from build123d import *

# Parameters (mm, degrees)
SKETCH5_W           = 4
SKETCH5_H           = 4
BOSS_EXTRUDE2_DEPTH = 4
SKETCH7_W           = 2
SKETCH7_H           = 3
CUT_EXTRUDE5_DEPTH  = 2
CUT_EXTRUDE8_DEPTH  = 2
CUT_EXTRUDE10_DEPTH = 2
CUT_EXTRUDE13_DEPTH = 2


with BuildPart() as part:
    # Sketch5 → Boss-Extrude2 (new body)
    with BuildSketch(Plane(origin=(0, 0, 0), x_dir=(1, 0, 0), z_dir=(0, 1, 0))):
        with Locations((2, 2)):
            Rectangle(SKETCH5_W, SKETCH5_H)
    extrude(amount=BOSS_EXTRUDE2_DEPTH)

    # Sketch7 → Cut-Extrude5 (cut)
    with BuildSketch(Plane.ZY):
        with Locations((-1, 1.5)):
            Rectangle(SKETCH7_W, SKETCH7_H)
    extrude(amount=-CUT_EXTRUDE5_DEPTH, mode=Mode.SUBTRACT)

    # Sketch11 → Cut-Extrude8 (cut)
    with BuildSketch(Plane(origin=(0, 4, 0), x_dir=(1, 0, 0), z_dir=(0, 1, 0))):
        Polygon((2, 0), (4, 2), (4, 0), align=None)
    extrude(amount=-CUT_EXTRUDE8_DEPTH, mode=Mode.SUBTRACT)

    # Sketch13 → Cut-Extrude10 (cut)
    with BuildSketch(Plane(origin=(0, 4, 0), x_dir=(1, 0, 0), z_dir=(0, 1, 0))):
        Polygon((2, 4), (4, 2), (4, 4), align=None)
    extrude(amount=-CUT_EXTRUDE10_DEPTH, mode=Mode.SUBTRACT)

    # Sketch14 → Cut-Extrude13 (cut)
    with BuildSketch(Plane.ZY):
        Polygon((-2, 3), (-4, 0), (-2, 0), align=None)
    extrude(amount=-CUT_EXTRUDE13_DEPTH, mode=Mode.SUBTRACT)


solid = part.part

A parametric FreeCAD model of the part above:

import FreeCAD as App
import Part
import Sketcher
Q = App.Units.Quantity


def add_polygon(sketch, points):
    """Adds a closed chain of lines whose ends are joined by coincident constraints."""
    first, n = sketch.GeometryCount, len(points)
    for a, b in zip(points, points[1:] + points[:1]):
        sketch.addGeometry(Part.LineSegment(App.Vector(*a, 0), App.Vector(*b, 0)), False)
    for i in range(n):
        sketch.addConstraint(Sketcher.Constraint("Coincident", first + i, 2, first + (i + 1) % n, 1))

doc = App.newDocument("Part")
body = doc.addObject("PartDesign::Body", "Body")

# Sketch on XZ plane
sketch1 = doc.addObject("Sketcher::SketchObject", "Sketch")
body.addObject(sketch1)
sketch1.AttachmentSupport = (doc.XZ_Plane, [""])
sketch1.MapMode = "FlatFace"
add_polygon(sketch1, [(0, -4), (0, 0), (4, 0), (4, -4)])  # lines 0-3
sketch1.addConstraint([
    Sketcher.Constraint("Vertical", 0),
    Sketcher.Constraint("Horizontal", 1),
    Sketcher.Constraint("Vertical", 2),
    Sketcher.Constraint("Horizontal", 3),
    Sketcher.Constraint("Coincident", 0, 2, -1, 1),
    Sketcher.Constraint("Equal", 3, 0),
    Sketcher.Constraint("DistanceX", 1, 1, 1, 2, Q("4 mm")),
])
pad1 = doc.addObject("PartDesign::Pad", "Pad")
body.addObject(pad1)
pad1.Profile = sketch1
pad1.Length = 4
pad1.Reversed = True

# Sketch on YZ plane
sketch2 = doc.addObject("Sketcher::SketchObject", "Sketch001")
body.addObject(sketch2)
sketch2.AttachmentSupport = (doc.YZ_Plane, [""])
sketch2.MapMode = "FlatFace"
add_polygon(sketch2, [(3, -2), (0, -2), (0, 0), (3, 0)])  # lines 0-3
sketch2.addConstraint([
    Sketcher.Constraint("Horizontal", 0),
    Sketcher.Constraint("Vertical", 1),
    Sketcher.Constraint("Horizontal", 2),
    Sketcher.Constraint("Vertical", 3),
    Sketcher.Constraint("Coincident", 1, 2, -1, 1),
    Sketcher.Constraint("DistanceX", 0, 2, 0, 1, Q("3 mm")),
    Sketcher.Constraint("DistanceY", 1, 1, 1, 2, Q("2 mm")),
])
pocket1 = doc.addObject("PartDesign::Pocket", "Pocket")
body.addObject(pocket1)
pocket1.Profile = sketch2
pocket1.Length = 2
pocket1.Reversed = True

# Sketch on XZ plane
sketch3 = doc.addObject("Sketcher::SketchObject", "Sketch002")
body.addObject(sketch3)
sketch3.AttachmentSupport = (doc.XZ_Plane, [""])
sketch3.MapMode = "FlatFace"
sketch3.AttachmentOffset = App.Placement(App.Vector(0, 0, -4), App.Rotation())
add_polygon(sketch3, [(4, -2), (2, 0), (4, 0)])  # lines 0-2
sketch3.addConstraint([
    Sketcher.Constraint("Horizontal", 1),
    Sketcher.Constraint("Vertical", 2),
    Sketcher.Constraint("PointOnObject", 0, 2, -1),
    Sketcher.Constraint("Equal", 1, 2),
    Sketcher.Constraint("DistanceX", 1, 1, 1, 2, Q("2 mm")),
    Sketcher.Constraint("DistanceX", -1, 1, 0, 2, Q("2 mm")),
])
pocket2 = doc.addObject("PartDesign::Pocket", "Pocket001")
body.addObject(pocket2)
pocket2.Profile = sketch3
pocket2.Length = 2
pocket2.Reversed = True

# Sketch on XZ plane
sketch4 = doc.addObject("Sketcher::SketchObject", "Sketch003")
body.addObject(sketch4)
sketch4.AttachmentSupport = (doc.XZ_Plane, [""])
sketch4.MapMode = "FlatFace"
sketch4.AttachmentOffset = App.Placement(App.Vector(0, 0, -4), App.Rotation())
add_polygon(sketch4, [(2, -4), (4, -2), (4, -4)])  # lines 0-2
sketch4.addConstraint([
    Sketcher.Constraint("Vertical", 1),
    Sketcher.Constraint("Horizontal", 2),
    Sketcher.Constraint("Equal", 2, 1),
    Sketcher.Constraint("DistanceX", 2, 2, 2, 1, Q("2 mm")),
    Sketcher.Constraint("DistanceX", -1, 1, 0, 2, Q("4 mm")),
    Sketcher.Constraint("DistanceY", 0, 2, -1, 1, Q("2 mm")),
])
pocket3 = doc.addObject("PartDesign::Pocket", "Pocket002")
body.addObject(pocket3)
pocket3.Profile = sketch4
pocket3.Length = 2
pocket3.Reversed = True

# Sketch on YZ plane
sketch5 = doc.addObject("Sketcher::SketchObject", "Sketch004")
body.addObject(sketch5)
sketch5.AttachmentSupport = (doc.YZ_Plane, [""])
sketch5.MapMode = "FlatFace"
add_polygon(sketch5, [(3, -2), (0, -4), (0, -2)])  # lines 0-2
sketch5.addConstraint([
    Sketcher.Constraint("Vertical", 1),
    Sketcher.Constraint("Horizontal", 2),
    Sketcher.Constraint("PointOnObject", 0, 2, -2),
    Sketcher.Constraint("DistanceX", 2, 1, 2, 2, Q("3 mm")),
    Sketcher.Constraint("DistanceY", 1, 1, 1, 2, Q("2 mm")),
    Sketcher.Constraint("DistanceY", 0, 2, -1, 1, Q("4 mm")),
])
pocket4 = doc.addObject("PartDesign::Pocket", "Pocket003")
body.addObject(pocket4)
pocket4.Profile = sketch5
pocket4.Length = 2
pocket4.Reversed = True

doc.recompute()
